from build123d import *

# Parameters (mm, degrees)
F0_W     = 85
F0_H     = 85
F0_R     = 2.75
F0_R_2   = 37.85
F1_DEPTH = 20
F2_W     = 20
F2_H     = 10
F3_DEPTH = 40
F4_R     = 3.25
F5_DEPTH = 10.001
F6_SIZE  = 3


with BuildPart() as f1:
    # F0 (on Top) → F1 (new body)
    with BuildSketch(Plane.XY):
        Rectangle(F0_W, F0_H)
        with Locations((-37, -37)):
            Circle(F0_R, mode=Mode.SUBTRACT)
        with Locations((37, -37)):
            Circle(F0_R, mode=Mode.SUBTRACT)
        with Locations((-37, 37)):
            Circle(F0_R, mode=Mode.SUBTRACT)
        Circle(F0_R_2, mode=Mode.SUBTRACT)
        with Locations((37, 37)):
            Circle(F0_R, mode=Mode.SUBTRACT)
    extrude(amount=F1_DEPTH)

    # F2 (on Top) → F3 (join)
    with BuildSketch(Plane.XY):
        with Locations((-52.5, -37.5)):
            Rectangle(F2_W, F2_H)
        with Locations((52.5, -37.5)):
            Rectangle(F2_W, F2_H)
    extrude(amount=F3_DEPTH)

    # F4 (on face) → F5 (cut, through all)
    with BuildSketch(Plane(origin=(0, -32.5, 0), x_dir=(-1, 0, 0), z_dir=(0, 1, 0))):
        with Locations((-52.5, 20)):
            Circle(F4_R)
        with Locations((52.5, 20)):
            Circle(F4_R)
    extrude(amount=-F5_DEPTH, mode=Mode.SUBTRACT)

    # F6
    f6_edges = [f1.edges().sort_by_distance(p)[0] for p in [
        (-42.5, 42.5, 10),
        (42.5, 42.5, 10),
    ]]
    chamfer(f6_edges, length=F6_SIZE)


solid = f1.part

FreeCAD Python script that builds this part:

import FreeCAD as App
import Part
import Sketcher
from FreeCAD import Vector
Q = App.Units.Quantity


def edges_at(feature, points):
    """Names of the edges that pass closest to the given points."""
    edges = feature.Shape.Edges
    near = lambda p: min(range(len(edges)), key=lambda i: edges[i].distToShape(Part.Vertex(*p))[0])
    return sorted({f"Edge{near(p) + 1}" for p in points})


def add_polygon(sketch, points):
    """Adds a closed chain of lines whose ends are joined by coincident constraints."""
    first, n = sketch.GeometryCount, len(points)
    for a, b in zip(points, points[1:] + points[:1]):
        sketch.addGeometry(Part.LineSegment(App.Vector(*a, 0), App.Vector(*b, 0)), False)
    for i in range(n):
        sketch.addConstraint(Sketcher.Constraint("Coincident", first + i, 2, first + (i + 1) % n, 1))

doc = App.newDocument("Part")
params = doc.addObject("Spreadsheet::Sheet", "Params")
for row, (alias, value) in enumerate([
    ("sketch1_diameter", "5.5 mm"),
    ("sketch1_diameter2", "75.7 mm"),
    ("sketch1_width", "85 mm"),
    ("pad1_length", "20 mm"),
    ("sketch2_width", "20 mm"),
    ("sketch2_height", "10 mm"),
    ("pad2_length", "40 mm"),
    ("sketch3_diameter", "6.5 mm"),
    ("chamfer_size", "3 mm"),
], start=1):
    params.set(f"A{row}", alias)
    params.set(f"B{row}", "=" + value)
    params.setAlias(f"B{row}", alias)

body = doc.addObject("PartDesign::Body", "Body")

sketch1 = doc.addObject("Sketcher::SketchObject", "Sketch")
body.addObject(sketch1)
sketch1.AttachmentSupport = (doc.XY_Plane, [""])
sketch1.MapMode = "FlatFace"
add_polygon(sketch1, [(-42.5, 42.5), (-42.5, -42.5), (42.5, -42.5), (42.5, 42.5)])
sketch1.addGeometry(Part.Circle(Vector(-37, -37, 0), Vector(0, 0, 1), 2.8), False)
sketch1.addGeometry(Part.Circle(Vector(37, -37, 0), Vector(0, 0, 1), 2.8), False)
sketch1.addGeometry(Part.Circle(Vector(-37, 37, 0), Vector(0, 0, 1), 2.8), False)
sketch1.addGeometry(Part.Circle(Vector(0, 0, 0), Vector(0, 0, 1), 37.9), False)
sketch1.addGeometry(Part.Circle(Vector(37, 37, 0), Vector(0, 0, 1), 2.8), False)
sketch1.addConstraint([
    Sketcher.Constraint("Vertical", 0),
    Sketcher.Constraint("Horizontal", 1),
    Sketcher.Constraint("Vertical", 2),
    Sketcher.Constraint("Horizontal", 3),
    Sketcher.Constraint("Coincident", 7, 3, -1, 1),
    Sketcher.Constraint("Equal", 4, 5),
    Sketcher.Constraint("Equal", 5, 6),
    Sketcher.Constraint("Equal", 6, 8),
    Sketcher.Constraint("Symmetric", 5, 3, 6, 3, -1, 1),
    Sketcher.Constraint("Symmetric", 4, 3, 8, 3, -1, 1),
    Sketcher.Constraint("Symmetric", 0, 2, 2, 2, -1, 1),
    Sketcher.Constraint("Symmetric", 4, 3, 5, 3, -2),
    Sketcher.Constraint("Equal", 3, 0),
    Sketcher.Constraint("Diameter", 4, Q("5.5 mm")),
    Sketcher.Constraint("Diameter", 7, Q("75.7 mm")),
    Sketcher.Constraint("DistanceX", 1, 1, 1, 2, Q("85 mm")),
    Sketcher.Constraint("DistanceX", 4, 3, -1, 1, Q("37 mm")),
    Sketcher.Constraint("DistanceY", 4, 3, -1, 1, Q("37 mm")),
])
sketch1.setExpression("Constraints[17]", "Params.sketch1_diameter")
sketch1.setExpression("Constraints[18]", "Params.sketch1_diameter2")
sketch1.setExpression("Constraints[19]", "Params.sketch1_width")
pad1 = doc.addObject("PartDesign::Pad", "Pad")
body.addObject(pad1)
pad1.Profile = sketch1
pad1.setExpression("Length", "Params.pad1_length")

sketch2 = doc.addObject("Sketcher::SketchObject", "Sketch001")
body.addObject(sketch2)
sketch2.AttachmentSupport = (doc.XY_Plane, [""])
sketch2.MapMode = "FlatFace"
add_polygon(sketch2, [(-62, -32), (-62, -42), (-42, -42), (-42, -32)])
add_polygon(sketch2, [(42, -32), (42, -42), (62, -42), (62, -32)])
sketch2.addConstraint([
    Sketcher.Constraint("Vertical", 0),
    Sketcher.Constraint("Horizontal", 1),
    Sketcher.Constraint("Vertical", 2),
    Sketcher.Constraint("Horizontal", 3),
    Sketcher.Constraint("Vertical", 4),
    Sketcher.Constraint("Horizontal", 5),
    Sketcher.Constraint("Vertical", 6),
    Sketcher.Constraint("Horizontal", 7),
    Sketcher.Constraint("Symmetric", 1, 2, 4, 2, -2),
    Sketcher.Constraint("Symmetric", 3, 2, 6, 2, -2),
    Sketcher.Constraint("DistanceX", 1, 1, 1, 2, Q("20 mm")),
    Sketcher.Constraint("DistanceY", 0, 2, 0, 1, Q("10 mm")),
    Sketcher.Constraint("DistanceX", 1, 2, 4, 2, Q("85 mm")),
    Sketcher.Constraint("DistanceY", 0, 2, -1, 1, Q("42.5 mm")),
])
sketch2.setExpression("Constraints[18]", "Params.sketch2_width")
sketch2.setExpression("Constraints[19]", "Params.sketch2_height")
pad2 = doc.addObject("PartDesign::Pad", "Pad001")
body.addObject(pad2)
pad2.Profile = sketch2
pad2.setExpression("Length", "Params.pad2_length")

sketch3 = doc.addObject("Sketcher::SketchObject", "Sketch002")
body.addObject(sketch3)
sketch3.AttachmentSupport = (doc.XZ_Plane, [""])
sketch3.MapMode = "FlatFace"
sketch3.AttachmentOffset = App.Placement(Vector(0, 0, 32.5), App.Rotation())
sketch3.addGeometry([
    Part.Circle(Vector(52.5, 20, 0), Vector(0, 0, 1), 3.2),
    Part.Circle(Vector(-52.5, 20, 0), Vector(0, 0, 1), 3.2),
], False)
sketch3.addConstraint([
    Sketcher.Constraint("Equal", 0, 1),
    Sketcher.Constraint("Symmetric", 0, 3, 1, 3, -2),
    Sketcher.Constraint("Diameter", 0, Q("6.5 mm")),
    Sketcher.Constraint("DistanceY", -1, 1, 0, 3, Q("20 mm")),
    Sketcher.Constraint("DistanceX", 1, 3, 0, 3, Q("105 mm")),
])
sketch3.setExpression("Constraints[2]", "Params.sketch3_diameter")
pocket1 = doc.addObject("PartDesign::Pocket", "Pocket")
body.addObject(pocket1)
pocket1.Profile = sketch3
pocket1.Type = "ThroughAll"
pocket1.Reversed = True
doc.recompute()

chamfer = doc.addObject("PartDesign::Chamfer", "Chamfer")
body.addObject(chamfer)
chamfer.Base = (pocket1, edges_at(pocket1, [(-42.5, 42.5, 10), (42.5, 42.5, 10)]))
chamfer.setExpression("Size", "Params.chamfer_size")

doc.recompute()
